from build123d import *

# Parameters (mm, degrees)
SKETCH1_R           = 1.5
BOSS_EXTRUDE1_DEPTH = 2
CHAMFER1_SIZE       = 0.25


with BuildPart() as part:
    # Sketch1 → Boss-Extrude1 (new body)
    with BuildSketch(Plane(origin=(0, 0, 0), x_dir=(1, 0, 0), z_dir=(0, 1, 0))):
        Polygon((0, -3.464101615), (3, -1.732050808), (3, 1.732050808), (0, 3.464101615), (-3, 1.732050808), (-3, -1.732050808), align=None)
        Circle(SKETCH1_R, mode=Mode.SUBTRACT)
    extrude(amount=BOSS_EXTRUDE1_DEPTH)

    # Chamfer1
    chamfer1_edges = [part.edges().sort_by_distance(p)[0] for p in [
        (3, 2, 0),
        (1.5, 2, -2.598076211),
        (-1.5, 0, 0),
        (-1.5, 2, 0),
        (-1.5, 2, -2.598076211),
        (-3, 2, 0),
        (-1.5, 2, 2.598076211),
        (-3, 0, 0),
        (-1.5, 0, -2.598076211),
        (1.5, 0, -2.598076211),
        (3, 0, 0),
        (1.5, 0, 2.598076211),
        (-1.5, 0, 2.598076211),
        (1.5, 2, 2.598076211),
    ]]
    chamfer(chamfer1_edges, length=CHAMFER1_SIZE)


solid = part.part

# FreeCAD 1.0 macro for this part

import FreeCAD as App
import Part
import Sketcher
Q = App.Units.Quantity


def edges_at(feature, points):
    """Names of the edges that pass closest to the given points."""
    edges = feature.Shape.Edges
    near = lambda p: min(range(len(edges)), key=lambda i: edges[i].distToShape(Part.Vertex(*p))[0])
    return sorted({f"Edge{near(p) + 1}" for p in points})


def add_polygon(sketch, points):
    """Adds a closed chain of lines whose ends are joined by coincident constraints."""
    first, n = sketch.GeometryCount, len(points)
    for a, b in zip(points, points[1:] + points[:1]):
        sketch.addGeometry(Part.LineSegment(App.Vector(*a, 0), App.Vector(*b, 0)), False)
    for i in range(n):
        sketch.addConstraint(Sketcher.Constraint("Coincident", first + i, 2, first + (i + 1) % n, 1))

doc = App.newDocument("Part")
body = doc.addObject("PartDesign::Body", "Body")

sketch1 = body.newObject("Sketcher::SketchObject", "Sketch")
sketch1.AttachmentSupport = (doc.getObject("XZ_Plane"), [""])
sketch1.MapMode = "FlatFace"
add_polygon(sketch1, [(0, 3.5), (3, 1.7), (3, -1.7), (0, -3.5), (-3, -1.7), (-3, 1.7)])
sketch1.addGeometry(Part.Circle(App.Vector(0, 0, 0), App.Vector(0, 0, 1), 1.5), False)
sketch1.addConstraint([
    Sketcher.Constraint("Vertical", 1),
    Sketcher.Constraint("Vertical", 4),
    Sketcher.Constraint("Coincident", 6, 3, -1, 1),
    Sketcher.Constraint("Symmetric", 0, 2, 3, 2, -1, 1),
    Sketcher.Constraint("Symmetric", 2, 2, 5, 2, -1, 1),
    Sketcher.Constraint("PointOnObject", 2, 2, -2),
    Sketcher.Constraint("Parallel", 2, 5),
    Sketcher.Constraint("Horizontal", 1, 2, 3, 2),
    Sketcher.Constraint("Diameter", 6, 3.0),
    Sketcher.Constraint("Angle", 0, Q("-30 deg")),
    Sketcher.Constraint("DistanceX", -1, 1, 0, 2, 3.0),
    Sketcher.Constraint("DistanceY", 1, 2, 1, 1, 3.464102),
])
pad1 = body.newObject("PartDesign::Pad", "Pad")
pad1.Profile = sketch1
pad1.Length = 2
pad1.Reversed = True
doc.recompute()

chamfer = body.newObject("PartDesign::Chamfer", "Chamfer")
chamfer.Base = (pad1, edges_at(pad1, [
    (3, 2, 0),
    (1.5, 2, -2.598),
    (-1.5, 0, 0),
    (-1.5, 2, 0),
    (-1.5, 2, -2.598),
    (-3, 2, 0),
    (-1.5, 2, 2.598),
    (-3, 0, 0),
    (-1.5, 0, -2.598),
    (1.5, 0, -2.598),
    (3, 0, 0),
    (1.5, 0, 2.598),
    (-1.5, 0, 2.598),
    (1.5, 2, 2.598),
]))
chamfer.Size = 0.25

doc.recompute()
